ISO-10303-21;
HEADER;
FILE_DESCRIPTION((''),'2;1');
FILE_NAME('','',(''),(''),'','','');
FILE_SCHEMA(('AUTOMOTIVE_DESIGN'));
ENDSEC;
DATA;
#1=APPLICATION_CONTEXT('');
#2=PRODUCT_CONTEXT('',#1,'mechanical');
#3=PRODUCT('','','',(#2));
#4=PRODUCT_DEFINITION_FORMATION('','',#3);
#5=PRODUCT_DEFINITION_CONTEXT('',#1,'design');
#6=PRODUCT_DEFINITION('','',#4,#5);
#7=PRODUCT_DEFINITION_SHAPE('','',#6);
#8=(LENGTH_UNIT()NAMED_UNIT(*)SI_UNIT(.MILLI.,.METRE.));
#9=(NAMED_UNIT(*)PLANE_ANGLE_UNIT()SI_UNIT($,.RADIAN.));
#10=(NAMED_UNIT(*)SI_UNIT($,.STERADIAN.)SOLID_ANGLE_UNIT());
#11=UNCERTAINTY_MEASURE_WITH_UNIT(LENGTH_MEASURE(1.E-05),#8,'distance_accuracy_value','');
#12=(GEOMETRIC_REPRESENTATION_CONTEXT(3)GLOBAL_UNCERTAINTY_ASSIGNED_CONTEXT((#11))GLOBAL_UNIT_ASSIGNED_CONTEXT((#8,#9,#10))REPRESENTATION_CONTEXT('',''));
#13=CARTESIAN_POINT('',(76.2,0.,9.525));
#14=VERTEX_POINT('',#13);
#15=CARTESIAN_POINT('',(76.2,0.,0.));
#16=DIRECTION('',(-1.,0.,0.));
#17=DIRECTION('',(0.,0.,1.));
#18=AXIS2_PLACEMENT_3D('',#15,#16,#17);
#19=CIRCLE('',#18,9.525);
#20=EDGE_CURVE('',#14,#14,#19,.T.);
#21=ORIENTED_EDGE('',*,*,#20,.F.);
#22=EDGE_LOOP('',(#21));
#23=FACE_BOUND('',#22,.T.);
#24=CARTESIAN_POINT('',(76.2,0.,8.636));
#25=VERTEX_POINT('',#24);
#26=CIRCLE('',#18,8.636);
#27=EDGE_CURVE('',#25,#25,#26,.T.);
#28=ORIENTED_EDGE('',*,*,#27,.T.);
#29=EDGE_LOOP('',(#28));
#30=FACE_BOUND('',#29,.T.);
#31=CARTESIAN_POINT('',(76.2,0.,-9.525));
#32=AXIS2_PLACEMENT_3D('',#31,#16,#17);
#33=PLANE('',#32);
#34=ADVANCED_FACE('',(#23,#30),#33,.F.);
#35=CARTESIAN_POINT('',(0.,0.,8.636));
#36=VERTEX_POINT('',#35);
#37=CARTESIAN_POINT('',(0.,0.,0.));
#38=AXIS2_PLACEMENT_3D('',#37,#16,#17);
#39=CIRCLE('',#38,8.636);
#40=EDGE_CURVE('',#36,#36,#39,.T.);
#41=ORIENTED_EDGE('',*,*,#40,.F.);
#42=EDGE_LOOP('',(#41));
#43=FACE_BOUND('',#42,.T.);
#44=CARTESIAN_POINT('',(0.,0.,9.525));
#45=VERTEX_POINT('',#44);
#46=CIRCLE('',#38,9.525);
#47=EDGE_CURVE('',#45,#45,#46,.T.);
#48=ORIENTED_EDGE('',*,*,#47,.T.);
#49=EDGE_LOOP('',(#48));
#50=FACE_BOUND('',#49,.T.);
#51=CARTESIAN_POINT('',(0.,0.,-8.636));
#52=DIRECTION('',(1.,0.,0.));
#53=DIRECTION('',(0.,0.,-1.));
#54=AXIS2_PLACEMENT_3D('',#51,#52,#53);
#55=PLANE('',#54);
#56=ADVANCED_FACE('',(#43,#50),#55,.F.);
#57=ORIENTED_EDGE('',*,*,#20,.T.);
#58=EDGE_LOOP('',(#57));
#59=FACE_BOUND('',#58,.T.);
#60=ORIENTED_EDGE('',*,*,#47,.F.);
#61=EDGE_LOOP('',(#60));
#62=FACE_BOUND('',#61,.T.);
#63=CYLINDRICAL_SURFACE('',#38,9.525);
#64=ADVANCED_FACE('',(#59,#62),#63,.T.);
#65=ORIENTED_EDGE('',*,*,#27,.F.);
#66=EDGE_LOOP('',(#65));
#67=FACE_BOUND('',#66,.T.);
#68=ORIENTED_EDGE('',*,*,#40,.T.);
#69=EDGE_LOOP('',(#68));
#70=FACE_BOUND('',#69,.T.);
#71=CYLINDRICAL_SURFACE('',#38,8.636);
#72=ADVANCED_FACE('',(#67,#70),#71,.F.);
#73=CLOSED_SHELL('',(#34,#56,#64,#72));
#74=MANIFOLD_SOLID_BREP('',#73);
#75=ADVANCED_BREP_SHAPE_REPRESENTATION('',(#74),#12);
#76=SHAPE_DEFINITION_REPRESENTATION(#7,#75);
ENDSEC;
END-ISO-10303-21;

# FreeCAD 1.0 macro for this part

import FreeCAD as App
import Part
import Sketcher

V = App.Vector
Q = App.Units.Quantity


def add_polygon(sketch, points):
    """Adds a closed chain of lines whose ends are joined by coincident constraints."""
    first, n = sketch.GeometryCount, len(points)
    for a, b in zip(points, points[1:] + points[:1]):
        sketch.addGeometry(Part.LineSegment(App.Vector(*a, 0), App.Vector(*b, 0)), False)
    for i in range(n):
        sketch.addConstraint(Sketcher.Constraint("Coincident", first + i, 2, first + (i + 1) % n, 1))

doc = App.newDocument("Part")
params = doc.addObject("Spreadsheet::Sheet", "Params")
for row, (alias, value) in enumerate([
    ("sketch1_width", "3 in"),
    ("sketch1_height", "0.035 in"),
    ("revolution_angle", "360 deg"),
], start=1):
    params.set(f"A{row}", alias)
    params.set(f"B{row}", "=" + value)
    params.setAlias(f"B{row}", alias)

body = doc.addObject("PartDesign::Body", "Body")

sketch1 = body.newObject("Sketcher::SketchObject", "Sketch")
sketch1.AttachmentSupport = (doc.getObject("XZ_Plane"), [""])
sketch1.MapMode = "FlatFace"
add_polygon(sketch1, [(0, -9.525), (0, -8.636), (76.2, -8.636), (76.2, -9.525)])
sketch1.addConstraint([
    Sketcher.Constraint("Vertical", 0),
    Sketcher.Constraint("Horizontal", 1),
    Sketcher.Constraint("Vertical", 2),
    Sketcher.Constraint("Horizontal", 3),
    Sketcher.Constraint("PointOnObject", 0, 2, -2),
    Sketcher.Constraint("DistanceX", 1, 1, 1, 2, Q("3 in")),
    Sketcher.Constraint("DistanceY", 0, 1, 0, 2, Q("0.035 in")),
    Sketcher.Constraint("DistanceY", 0, 2, -1, 1, Q("0.34 in")),
])
sketch1.setExpression("Constraints[9]", "Params.sketch1_width")
sketch1.setExpression("Constraints[10]", "Params.sketch1_height")
revolution = body.newObject("PartDesign::Revolution", "Revolution")
revolution.Profile = sketch1
revolution.ReferenceAxis = (sketch1, ["H_Axis"])
revolution.setExpression("Angle", "Params.revolution_angle")

doc.recompute()
